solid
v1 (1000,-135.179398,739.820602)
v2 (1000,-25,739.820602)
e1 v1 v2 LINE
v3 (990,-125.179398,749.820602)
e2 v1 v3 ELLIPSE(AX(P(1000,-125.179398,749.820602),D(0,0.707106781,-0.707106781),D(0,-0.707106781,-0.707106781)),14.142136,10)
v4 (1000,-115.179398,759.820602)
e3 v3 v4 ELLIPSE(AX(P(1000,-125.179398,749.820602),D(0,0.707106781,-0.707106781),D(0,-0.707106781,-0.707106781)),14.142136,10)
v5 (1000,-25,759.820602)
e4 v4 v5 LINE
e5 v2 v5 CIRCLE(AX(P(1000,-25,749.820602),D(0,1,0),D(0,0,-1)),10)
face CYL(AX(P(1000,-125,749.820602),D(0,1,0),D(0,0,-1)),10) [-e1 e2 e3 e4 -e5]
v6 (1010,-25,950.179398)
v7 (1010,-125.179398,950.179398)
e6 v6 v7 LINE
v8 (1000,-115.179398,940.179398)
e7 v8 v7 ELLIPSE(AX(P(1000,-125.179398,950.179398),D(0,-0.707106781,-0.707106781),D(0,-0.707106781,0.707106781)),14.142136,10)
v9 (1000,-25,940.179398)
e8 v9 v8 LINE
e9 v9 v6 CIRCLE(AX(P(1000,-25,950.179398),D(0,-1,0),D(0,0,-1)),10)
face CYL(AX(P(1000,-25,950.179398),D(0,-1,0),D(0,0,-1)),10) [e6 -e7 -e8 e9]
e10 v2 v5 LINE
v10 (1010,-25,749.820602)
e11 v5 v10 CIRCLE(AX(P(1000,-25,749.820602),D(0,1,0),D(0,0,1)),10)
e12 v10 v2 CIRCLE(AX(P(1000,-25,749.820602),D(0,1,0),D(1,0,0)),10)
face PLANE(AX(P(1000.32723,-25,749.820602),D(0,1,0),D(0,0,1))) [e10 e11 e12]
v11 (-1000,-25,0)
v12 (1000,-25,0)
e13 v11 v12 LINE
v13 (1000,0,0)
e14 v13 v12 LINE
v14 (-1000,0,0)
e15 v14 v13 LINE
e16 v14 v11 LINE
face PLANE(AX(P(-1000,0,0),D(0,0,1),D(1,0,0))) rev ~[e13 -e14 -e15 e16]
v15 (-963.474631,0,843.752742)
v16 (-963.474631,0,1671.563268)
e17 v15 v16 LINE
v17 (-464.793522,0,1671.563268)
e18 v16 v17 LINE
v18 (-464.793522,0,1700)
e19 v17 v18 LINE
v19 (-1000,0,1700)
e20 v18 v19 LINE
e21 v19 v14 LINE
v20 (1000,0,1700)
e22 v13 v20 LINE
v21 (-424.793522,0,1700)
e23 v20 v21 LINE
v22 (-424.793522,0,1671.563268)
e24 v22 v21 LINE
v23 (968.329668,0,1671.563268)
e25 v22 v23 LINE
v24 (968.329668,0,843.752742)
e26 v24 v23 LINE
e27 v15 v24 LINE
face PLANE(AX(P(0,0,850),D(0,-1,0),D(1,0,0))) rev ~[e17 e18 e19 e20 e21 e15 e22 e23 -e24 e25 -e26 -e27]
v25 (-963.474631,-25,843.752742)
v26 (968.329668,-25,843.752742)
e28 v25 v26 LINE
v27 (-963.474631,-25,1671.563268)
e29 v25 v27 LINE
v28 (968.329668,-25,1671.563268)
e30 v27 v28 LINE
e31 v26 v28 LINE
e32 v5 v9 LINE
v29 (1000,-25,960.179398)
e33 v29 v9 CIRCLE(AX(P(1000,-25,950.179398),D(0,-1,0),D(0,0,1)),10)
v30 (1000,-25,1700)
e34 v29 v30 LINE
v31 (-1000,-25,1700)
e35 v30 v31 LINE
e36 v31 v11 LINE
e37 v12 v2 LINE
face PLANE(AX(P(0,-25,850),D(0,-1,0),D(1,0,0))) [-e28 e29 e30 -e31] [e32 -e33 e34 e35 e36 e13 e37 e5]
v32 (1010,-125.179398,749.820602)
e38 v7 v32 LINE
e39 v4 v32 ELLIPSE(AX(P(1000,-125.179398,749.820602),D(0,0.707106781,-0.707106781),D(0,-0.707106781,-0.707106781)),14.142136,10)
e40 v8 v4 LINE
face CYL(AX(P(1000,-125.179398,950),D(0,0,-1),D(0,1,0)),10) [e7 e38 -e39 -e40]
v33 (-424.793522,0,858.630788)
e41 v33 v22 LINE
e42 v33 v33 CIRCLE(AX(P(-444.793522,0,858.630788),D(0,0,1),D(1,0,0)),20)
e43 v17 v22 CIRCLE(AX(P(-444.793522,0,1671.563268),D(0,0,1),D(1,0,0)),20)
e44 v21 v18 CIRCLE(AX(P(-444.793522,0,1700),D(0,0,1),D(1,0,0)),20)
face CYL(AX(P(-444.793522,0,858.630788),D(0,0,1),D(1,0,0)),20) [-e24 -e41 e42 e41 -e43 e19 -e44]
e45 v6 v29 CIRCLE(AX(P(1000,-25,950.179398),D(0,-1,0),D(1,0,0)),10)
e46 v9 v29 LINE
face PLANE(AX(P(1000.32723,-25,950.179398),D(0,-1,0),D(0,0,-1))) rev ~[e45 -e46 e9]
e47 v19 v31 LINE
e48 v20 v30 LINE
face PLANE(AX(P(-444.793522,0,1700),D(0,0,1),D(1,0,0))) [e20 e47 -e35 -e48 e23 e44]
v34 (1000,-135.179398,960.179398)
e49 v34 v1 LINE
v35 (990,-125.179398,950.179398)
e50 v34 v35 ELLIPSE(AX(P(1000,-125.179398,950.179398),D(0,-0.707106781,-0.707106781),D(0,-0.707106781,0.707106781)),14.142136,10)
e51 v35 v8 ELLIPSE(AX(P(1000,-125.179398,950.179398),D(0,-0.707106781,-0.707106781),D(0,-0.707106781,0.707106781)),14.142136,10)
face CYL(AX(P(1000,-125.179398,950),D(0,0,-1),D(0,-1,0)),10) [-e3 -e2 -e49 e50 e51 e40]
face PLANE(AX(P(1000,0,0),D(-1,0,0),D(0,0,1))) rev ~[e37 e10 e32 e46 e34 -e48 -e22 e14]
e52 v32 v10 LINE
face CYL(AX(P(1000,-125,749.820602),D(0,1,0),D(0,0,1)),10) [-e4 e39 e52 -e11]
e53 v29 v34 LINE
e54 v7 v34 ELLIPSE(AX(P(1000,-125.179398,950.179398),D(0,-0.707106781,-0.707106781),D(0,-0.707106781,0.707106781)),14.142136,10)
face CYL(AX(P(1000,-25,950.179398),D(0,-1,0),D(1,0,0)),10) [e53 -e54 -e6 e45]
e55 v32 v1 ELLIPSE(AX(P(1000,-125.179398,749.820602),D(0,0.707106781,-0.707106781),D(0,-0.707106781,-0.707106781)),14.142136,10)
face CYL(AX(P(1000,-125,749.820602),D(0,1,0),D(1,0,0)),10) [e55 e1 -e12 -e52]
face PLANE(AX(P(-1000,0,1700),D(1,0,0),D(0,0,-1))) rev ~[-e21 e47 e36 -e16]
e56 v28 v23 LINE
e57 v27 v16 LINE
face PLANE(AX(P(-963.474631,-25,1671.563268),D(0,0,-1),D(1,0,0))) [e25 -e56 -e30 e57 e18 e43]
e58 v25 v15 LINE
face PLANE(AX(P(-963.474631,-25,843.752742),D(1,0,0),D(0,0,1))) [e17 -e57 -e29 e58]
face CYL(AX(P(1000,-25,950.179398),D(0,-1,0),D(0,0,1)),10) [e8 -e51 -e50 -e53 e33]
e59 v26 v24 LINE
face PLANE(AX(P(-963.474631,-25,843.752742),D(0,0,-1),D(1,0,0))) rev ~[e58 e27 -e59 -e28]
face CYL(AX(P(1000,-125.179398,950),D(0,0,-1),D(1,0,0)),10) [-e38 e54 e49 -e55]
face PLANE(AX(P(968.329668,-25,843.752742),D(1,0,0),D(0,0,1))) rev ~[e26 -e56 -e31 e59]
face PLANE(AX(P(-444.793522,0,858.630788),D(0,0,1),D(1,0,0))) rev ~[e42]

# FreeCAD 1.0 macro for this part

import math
import FreeCAD as App
import Part
import Sketcher
Q = App.Units.Quantity


def add_polygon(sketch, points):
    """Adds a closed chain of lines whose ends are joined by coincident constraints."""
    first, n = sketch.GeometryCount, len(points)
    for a, b in zip(points, points[1:] + points[:1]):
        sketch.addGeometry(Part.LineSegment(App.Vector(*a, 0), App.Vector(*b, 0)), False)
    for i in range(n):
        sketch.addConstraint(Sketcher.Constraint("Coincident", first + i, 2, first + (i + 1) % n, 1))

doc = App.newDocument("Part")
body = doc.addObject("PartDesign::Body", "Body")

# Sketch on XZ plane
sketch1 = body.newObject("Sketcher::SketchObject", "Sketch")
sketch1.AttachmentSupport = (doc.getObject("XZ_Plane"), [""])
sketch1.MapMode = "FlatFace"
add_polygon(sketch1, [(-1000, 0), (1000, 0), (1000, 1700), (-1000, 1700)])  # lines 0-3
sketch1.addConstraint(Sketcher.Constraint("Horizontal", 0))
sketch1.addConstraint(Sketcher.Constraint("Vertical", 1))
sketch1.addConstraint(Sketcher.Constraint("Horizontal", 2))
sketch1.addConstraint(Sketcher.Constraint("Vertical", 3))
sketch1.addConstraint(Sketcher.Constraint("Symmetric", 0, 2, 3, 2, -1, 1))
sketch1.addConstraint(Sketcher.Constraint("DistanceX", 0, 1, 0, 2, Q("2000 mm")))
sketch1.addConstraint(Sketcher.Constraint("DistanceY", 1, 1, 1, 2, Q("1700 mm")))
pad1 = body.newObject("PartDesign::Pad", "Pad")
pad1.Profile = sketch1
pad1.Length = 25

# Sketch on XZ plane
sketch2 = body.newObject("Sketcher::SketchObject", "Sketch001")
sketch2.AttachmentSupport = (doc.getObject("XZ_Plane"), [""])
sketch2.MapMode = "FlatFace"
sketch2.AttachmentOffset = App.Placement(App.Vector(0, 0, 25), App.Rotation())
sketch2.addGeometry(Part.ArcOfCircle(Part.Circle(App.Vector(1000, 950, 0), App.Vector(0, 0, 1), 10), math.radians(-90), math.radians(0)), False)
sketch2.addGeometry(Part.ArcOfCircle(Part.Circle(App.Vector(1000, 950, 0), App.Vector(0, 0, 1), 10), math.radians(0), math.radians(90)), False)
sketch2.addGeometry(Part.ArcOfCircle(Part.Circle(App.Vector(1000, 950, 0), App.Vector(0, 0, 1), 10), math.radians(90), math.radians(270)), False)
sketch2.addConstraint(Sketcher.Constraint("Tangent", 0, 2, 1, 1))
sketch2.addConstraint(Sketcher.Constraint("Tangent", 1, 2, 2, 1))
sketch2.addConstraint(Sketcher.Constraint("Tangent", 2, 2, 0, 1))
sketch2.addConstraint(Sketcher.Constraint("Horizontal", 2, 3, 0, 2))
sketch2.addConstraint(Sketcher.Constraint("Vertical", 2, 3, 1, 2))
sketch2.addConstraint(Sketcher.Constraint("Vertical", 1, 2, 2, 2))
sketch2.addConstraint(Sketcher.Constraint("Radius", 0, Q("10 mm")))
sketch2.addConstraint(Sketcher.Constraint("DistanceX", -1, 1, 0, 3, Q("1000 mm")))
sketch2.addConstraint(Sketcher.Constraint("DistanceY", -1, 1, 0, 3, Q("950.179398 mm")))

# Sketch on YZ plane
sketch3 = body.newObject("Sketcher::SketchObject", "Sketch002")
sketch3.AttachmentSupport = (doc.getObject("YZ_Plane"), [""])
sketch3.MapMode = "FlatFace"
sketch3.AttachmentOffset = App.Placement(App.Vector(0, 0, 1000), App.Rotation())
sketch3.addGeometry(Part.LineSegment(App.Vector(-25, 950, 0), App.Vector(-125, 950, 0)), False)
sketch3.addGeometry(Part.LineSegment(App.Vector(-125, 950, 0), App.Vector(-125, 750, 0)), False)
sketch3.addGeometry(Part.LineSegment(App.Vector(-125, 750, 0), App.Vector(-25, 750, 0)), False)
sketch3.addConstraint(Sketcher.Constraint("Coincident", 0, 2, 1, 1))
sketch3.addConstraint(Sketcher.Constraint("Coincident", 1, 2, 2, 1))
sketch3.addConstraint(Sketcher.Constraint("Horizontal", 0))
sketch3.addConstraint(Sketcher.Constraint("Vertical", 1))
sketch3.addConstraint(Sketcher.Constraint("Horizontal", 2))
sketch3.addConstraint(Sketcher.Constraint("Vertical", 0, 1, 2, 2))
sketch3.addConstraint(Sketcher.Constraint("DistanceX", 0, 2, 0, 1, Q("100 mm")))
sketch3.addConstraint(Sketcher.Constraint("DistanceY", 1, 2, 1, 1, Q("200 mm")))
sketch3.addConstraint(Sketcher.Constraint("DistanceX", 0, 1, -1, 1, Q("25 mm")))
sketch3.addConstraint(Sketcher.Constraint("DistanceY", -1, 1, 0, 1, Q("950 mm")))
doc.recompute()

additivepipe = body.newObject("PartDesign::AdditivePipe", "AdditivePipe")
additivepipe.Profile = sketch2
additivepipe.Spine = (sketch3, ["Edge1", "Edge2", "Edge3"])
additivepipe.Transition = "Right corner"

# Sketch on XZ plane
sketch4 = body.newObject("Sketcher::SketchObject", "Sketch003")
sketch4.AttachmentSupport = (doc.getObject("XZ_Plane"), [""])
sketch4.MapMode = "FlatFace"
sketch4.AttachmentOffset = App.Placement(App.Vector(0, 0, 25), App.Rotation())
add_polygon(sketch4, [(-963, 1672), (-963, 844), (968, 844), (968, 1672)])  # lines 0-3
sketch4.addConstraint(Sketcher.Constraint("Vertical", 0))
sketch4.addConstraint(Sketcher.Constraint("Horizontal", 1))
sketch4.addConstraint(Sketcher.Constraint("Vertical", 2))
sketch4.addConstraint(Sketcher.Constraint("Horizontal", 3))
sketch4.addConstraint(Sketcher.Constraint("DistanceX", 1, 1, 1, 2, Q("1931.804299 mm")))
sketch4.addConstraint(Sketcher.Constraint("DistanceY", 0, 2, 0, 1, Q("827.810526 mm")))
sketch4.addConstraint(Sketcher.Constraint("DistanceX", 0, 2, -1, 1, Q("963.474631 mm")))
sketch4.addConstraint(Sketcher.Constraint("DistanceY", -1, 1, 0, 2, Q("843.752742 mm")))
pocket1 = body.newObject("PartDesign::Pocket", "Pocket")
pocket1.Profile = sketch4
pocket1.Length = 25

# Sketch on XY plane
sketch5 = body.newObject("Sketcher::SketchObject", "Sketch004")
sketch5.AttachmentSupport = (doc.getObject("XY_Plane"), [""])
sketch5.MapMode = "FlatFace"
sketch5.AttachmentOffset = App.Placement(App.Vector(0, 0, 1700), App.Rotation())
sketch5.addGeometry(Part.Circle(App.Vector(-445, 0, 0), App.Vector(0, 0, 1), 20), False)
sketch5.addConstraint(Sketcher.Constraint("PointOnObject", 0, 3, -1))
sketch5.addConstraint(Sketcher.Constraint("Diameter", 0, Q("40 mm")))
sketch5.addConstraint(Sketcher.Constraint("DistanceX", 0, 3, -1, 1, Q("444.793522 mm")))

# Sketch on XZ plane
sketch6 = body.newObject("Sketcher::SketchObject", "Sketch005")
sketch6.AttachmentSupport = (doc.getObject("XZ_Plane"), [""])
sketch6.MapMode = "FlatFace"
sketch6.addGeometry(Part.LineSegment(App.Vector(0, 848, 0), App.Vector(0, 1689, 0)), False)
sketch6.addConstraint(Sketcher.Constraint("Vertical", 0))
sketch6.addConstraint(Sketcher.Constraint("PointOnObject", 0, 1, -2))
sketch6.addConstraint(Sketcher.Constraint("DistanceY", 0, 1, 0, 2, Q("841.369212 mm")))
sketch6.addConstraint(Sketcher.Constraint("DistanceY", -1, 1, 0, 1, Q("847.696722 mm")))
doc.recompute()

additivepipe2 = body.newObject("PartDesign::AdditivePipe", "AdditivePipe001")
additivepipe2.Profile = sketch5
additivepipe2.Spine = (sketch6, ["Edge1"])

doc.recompute()
